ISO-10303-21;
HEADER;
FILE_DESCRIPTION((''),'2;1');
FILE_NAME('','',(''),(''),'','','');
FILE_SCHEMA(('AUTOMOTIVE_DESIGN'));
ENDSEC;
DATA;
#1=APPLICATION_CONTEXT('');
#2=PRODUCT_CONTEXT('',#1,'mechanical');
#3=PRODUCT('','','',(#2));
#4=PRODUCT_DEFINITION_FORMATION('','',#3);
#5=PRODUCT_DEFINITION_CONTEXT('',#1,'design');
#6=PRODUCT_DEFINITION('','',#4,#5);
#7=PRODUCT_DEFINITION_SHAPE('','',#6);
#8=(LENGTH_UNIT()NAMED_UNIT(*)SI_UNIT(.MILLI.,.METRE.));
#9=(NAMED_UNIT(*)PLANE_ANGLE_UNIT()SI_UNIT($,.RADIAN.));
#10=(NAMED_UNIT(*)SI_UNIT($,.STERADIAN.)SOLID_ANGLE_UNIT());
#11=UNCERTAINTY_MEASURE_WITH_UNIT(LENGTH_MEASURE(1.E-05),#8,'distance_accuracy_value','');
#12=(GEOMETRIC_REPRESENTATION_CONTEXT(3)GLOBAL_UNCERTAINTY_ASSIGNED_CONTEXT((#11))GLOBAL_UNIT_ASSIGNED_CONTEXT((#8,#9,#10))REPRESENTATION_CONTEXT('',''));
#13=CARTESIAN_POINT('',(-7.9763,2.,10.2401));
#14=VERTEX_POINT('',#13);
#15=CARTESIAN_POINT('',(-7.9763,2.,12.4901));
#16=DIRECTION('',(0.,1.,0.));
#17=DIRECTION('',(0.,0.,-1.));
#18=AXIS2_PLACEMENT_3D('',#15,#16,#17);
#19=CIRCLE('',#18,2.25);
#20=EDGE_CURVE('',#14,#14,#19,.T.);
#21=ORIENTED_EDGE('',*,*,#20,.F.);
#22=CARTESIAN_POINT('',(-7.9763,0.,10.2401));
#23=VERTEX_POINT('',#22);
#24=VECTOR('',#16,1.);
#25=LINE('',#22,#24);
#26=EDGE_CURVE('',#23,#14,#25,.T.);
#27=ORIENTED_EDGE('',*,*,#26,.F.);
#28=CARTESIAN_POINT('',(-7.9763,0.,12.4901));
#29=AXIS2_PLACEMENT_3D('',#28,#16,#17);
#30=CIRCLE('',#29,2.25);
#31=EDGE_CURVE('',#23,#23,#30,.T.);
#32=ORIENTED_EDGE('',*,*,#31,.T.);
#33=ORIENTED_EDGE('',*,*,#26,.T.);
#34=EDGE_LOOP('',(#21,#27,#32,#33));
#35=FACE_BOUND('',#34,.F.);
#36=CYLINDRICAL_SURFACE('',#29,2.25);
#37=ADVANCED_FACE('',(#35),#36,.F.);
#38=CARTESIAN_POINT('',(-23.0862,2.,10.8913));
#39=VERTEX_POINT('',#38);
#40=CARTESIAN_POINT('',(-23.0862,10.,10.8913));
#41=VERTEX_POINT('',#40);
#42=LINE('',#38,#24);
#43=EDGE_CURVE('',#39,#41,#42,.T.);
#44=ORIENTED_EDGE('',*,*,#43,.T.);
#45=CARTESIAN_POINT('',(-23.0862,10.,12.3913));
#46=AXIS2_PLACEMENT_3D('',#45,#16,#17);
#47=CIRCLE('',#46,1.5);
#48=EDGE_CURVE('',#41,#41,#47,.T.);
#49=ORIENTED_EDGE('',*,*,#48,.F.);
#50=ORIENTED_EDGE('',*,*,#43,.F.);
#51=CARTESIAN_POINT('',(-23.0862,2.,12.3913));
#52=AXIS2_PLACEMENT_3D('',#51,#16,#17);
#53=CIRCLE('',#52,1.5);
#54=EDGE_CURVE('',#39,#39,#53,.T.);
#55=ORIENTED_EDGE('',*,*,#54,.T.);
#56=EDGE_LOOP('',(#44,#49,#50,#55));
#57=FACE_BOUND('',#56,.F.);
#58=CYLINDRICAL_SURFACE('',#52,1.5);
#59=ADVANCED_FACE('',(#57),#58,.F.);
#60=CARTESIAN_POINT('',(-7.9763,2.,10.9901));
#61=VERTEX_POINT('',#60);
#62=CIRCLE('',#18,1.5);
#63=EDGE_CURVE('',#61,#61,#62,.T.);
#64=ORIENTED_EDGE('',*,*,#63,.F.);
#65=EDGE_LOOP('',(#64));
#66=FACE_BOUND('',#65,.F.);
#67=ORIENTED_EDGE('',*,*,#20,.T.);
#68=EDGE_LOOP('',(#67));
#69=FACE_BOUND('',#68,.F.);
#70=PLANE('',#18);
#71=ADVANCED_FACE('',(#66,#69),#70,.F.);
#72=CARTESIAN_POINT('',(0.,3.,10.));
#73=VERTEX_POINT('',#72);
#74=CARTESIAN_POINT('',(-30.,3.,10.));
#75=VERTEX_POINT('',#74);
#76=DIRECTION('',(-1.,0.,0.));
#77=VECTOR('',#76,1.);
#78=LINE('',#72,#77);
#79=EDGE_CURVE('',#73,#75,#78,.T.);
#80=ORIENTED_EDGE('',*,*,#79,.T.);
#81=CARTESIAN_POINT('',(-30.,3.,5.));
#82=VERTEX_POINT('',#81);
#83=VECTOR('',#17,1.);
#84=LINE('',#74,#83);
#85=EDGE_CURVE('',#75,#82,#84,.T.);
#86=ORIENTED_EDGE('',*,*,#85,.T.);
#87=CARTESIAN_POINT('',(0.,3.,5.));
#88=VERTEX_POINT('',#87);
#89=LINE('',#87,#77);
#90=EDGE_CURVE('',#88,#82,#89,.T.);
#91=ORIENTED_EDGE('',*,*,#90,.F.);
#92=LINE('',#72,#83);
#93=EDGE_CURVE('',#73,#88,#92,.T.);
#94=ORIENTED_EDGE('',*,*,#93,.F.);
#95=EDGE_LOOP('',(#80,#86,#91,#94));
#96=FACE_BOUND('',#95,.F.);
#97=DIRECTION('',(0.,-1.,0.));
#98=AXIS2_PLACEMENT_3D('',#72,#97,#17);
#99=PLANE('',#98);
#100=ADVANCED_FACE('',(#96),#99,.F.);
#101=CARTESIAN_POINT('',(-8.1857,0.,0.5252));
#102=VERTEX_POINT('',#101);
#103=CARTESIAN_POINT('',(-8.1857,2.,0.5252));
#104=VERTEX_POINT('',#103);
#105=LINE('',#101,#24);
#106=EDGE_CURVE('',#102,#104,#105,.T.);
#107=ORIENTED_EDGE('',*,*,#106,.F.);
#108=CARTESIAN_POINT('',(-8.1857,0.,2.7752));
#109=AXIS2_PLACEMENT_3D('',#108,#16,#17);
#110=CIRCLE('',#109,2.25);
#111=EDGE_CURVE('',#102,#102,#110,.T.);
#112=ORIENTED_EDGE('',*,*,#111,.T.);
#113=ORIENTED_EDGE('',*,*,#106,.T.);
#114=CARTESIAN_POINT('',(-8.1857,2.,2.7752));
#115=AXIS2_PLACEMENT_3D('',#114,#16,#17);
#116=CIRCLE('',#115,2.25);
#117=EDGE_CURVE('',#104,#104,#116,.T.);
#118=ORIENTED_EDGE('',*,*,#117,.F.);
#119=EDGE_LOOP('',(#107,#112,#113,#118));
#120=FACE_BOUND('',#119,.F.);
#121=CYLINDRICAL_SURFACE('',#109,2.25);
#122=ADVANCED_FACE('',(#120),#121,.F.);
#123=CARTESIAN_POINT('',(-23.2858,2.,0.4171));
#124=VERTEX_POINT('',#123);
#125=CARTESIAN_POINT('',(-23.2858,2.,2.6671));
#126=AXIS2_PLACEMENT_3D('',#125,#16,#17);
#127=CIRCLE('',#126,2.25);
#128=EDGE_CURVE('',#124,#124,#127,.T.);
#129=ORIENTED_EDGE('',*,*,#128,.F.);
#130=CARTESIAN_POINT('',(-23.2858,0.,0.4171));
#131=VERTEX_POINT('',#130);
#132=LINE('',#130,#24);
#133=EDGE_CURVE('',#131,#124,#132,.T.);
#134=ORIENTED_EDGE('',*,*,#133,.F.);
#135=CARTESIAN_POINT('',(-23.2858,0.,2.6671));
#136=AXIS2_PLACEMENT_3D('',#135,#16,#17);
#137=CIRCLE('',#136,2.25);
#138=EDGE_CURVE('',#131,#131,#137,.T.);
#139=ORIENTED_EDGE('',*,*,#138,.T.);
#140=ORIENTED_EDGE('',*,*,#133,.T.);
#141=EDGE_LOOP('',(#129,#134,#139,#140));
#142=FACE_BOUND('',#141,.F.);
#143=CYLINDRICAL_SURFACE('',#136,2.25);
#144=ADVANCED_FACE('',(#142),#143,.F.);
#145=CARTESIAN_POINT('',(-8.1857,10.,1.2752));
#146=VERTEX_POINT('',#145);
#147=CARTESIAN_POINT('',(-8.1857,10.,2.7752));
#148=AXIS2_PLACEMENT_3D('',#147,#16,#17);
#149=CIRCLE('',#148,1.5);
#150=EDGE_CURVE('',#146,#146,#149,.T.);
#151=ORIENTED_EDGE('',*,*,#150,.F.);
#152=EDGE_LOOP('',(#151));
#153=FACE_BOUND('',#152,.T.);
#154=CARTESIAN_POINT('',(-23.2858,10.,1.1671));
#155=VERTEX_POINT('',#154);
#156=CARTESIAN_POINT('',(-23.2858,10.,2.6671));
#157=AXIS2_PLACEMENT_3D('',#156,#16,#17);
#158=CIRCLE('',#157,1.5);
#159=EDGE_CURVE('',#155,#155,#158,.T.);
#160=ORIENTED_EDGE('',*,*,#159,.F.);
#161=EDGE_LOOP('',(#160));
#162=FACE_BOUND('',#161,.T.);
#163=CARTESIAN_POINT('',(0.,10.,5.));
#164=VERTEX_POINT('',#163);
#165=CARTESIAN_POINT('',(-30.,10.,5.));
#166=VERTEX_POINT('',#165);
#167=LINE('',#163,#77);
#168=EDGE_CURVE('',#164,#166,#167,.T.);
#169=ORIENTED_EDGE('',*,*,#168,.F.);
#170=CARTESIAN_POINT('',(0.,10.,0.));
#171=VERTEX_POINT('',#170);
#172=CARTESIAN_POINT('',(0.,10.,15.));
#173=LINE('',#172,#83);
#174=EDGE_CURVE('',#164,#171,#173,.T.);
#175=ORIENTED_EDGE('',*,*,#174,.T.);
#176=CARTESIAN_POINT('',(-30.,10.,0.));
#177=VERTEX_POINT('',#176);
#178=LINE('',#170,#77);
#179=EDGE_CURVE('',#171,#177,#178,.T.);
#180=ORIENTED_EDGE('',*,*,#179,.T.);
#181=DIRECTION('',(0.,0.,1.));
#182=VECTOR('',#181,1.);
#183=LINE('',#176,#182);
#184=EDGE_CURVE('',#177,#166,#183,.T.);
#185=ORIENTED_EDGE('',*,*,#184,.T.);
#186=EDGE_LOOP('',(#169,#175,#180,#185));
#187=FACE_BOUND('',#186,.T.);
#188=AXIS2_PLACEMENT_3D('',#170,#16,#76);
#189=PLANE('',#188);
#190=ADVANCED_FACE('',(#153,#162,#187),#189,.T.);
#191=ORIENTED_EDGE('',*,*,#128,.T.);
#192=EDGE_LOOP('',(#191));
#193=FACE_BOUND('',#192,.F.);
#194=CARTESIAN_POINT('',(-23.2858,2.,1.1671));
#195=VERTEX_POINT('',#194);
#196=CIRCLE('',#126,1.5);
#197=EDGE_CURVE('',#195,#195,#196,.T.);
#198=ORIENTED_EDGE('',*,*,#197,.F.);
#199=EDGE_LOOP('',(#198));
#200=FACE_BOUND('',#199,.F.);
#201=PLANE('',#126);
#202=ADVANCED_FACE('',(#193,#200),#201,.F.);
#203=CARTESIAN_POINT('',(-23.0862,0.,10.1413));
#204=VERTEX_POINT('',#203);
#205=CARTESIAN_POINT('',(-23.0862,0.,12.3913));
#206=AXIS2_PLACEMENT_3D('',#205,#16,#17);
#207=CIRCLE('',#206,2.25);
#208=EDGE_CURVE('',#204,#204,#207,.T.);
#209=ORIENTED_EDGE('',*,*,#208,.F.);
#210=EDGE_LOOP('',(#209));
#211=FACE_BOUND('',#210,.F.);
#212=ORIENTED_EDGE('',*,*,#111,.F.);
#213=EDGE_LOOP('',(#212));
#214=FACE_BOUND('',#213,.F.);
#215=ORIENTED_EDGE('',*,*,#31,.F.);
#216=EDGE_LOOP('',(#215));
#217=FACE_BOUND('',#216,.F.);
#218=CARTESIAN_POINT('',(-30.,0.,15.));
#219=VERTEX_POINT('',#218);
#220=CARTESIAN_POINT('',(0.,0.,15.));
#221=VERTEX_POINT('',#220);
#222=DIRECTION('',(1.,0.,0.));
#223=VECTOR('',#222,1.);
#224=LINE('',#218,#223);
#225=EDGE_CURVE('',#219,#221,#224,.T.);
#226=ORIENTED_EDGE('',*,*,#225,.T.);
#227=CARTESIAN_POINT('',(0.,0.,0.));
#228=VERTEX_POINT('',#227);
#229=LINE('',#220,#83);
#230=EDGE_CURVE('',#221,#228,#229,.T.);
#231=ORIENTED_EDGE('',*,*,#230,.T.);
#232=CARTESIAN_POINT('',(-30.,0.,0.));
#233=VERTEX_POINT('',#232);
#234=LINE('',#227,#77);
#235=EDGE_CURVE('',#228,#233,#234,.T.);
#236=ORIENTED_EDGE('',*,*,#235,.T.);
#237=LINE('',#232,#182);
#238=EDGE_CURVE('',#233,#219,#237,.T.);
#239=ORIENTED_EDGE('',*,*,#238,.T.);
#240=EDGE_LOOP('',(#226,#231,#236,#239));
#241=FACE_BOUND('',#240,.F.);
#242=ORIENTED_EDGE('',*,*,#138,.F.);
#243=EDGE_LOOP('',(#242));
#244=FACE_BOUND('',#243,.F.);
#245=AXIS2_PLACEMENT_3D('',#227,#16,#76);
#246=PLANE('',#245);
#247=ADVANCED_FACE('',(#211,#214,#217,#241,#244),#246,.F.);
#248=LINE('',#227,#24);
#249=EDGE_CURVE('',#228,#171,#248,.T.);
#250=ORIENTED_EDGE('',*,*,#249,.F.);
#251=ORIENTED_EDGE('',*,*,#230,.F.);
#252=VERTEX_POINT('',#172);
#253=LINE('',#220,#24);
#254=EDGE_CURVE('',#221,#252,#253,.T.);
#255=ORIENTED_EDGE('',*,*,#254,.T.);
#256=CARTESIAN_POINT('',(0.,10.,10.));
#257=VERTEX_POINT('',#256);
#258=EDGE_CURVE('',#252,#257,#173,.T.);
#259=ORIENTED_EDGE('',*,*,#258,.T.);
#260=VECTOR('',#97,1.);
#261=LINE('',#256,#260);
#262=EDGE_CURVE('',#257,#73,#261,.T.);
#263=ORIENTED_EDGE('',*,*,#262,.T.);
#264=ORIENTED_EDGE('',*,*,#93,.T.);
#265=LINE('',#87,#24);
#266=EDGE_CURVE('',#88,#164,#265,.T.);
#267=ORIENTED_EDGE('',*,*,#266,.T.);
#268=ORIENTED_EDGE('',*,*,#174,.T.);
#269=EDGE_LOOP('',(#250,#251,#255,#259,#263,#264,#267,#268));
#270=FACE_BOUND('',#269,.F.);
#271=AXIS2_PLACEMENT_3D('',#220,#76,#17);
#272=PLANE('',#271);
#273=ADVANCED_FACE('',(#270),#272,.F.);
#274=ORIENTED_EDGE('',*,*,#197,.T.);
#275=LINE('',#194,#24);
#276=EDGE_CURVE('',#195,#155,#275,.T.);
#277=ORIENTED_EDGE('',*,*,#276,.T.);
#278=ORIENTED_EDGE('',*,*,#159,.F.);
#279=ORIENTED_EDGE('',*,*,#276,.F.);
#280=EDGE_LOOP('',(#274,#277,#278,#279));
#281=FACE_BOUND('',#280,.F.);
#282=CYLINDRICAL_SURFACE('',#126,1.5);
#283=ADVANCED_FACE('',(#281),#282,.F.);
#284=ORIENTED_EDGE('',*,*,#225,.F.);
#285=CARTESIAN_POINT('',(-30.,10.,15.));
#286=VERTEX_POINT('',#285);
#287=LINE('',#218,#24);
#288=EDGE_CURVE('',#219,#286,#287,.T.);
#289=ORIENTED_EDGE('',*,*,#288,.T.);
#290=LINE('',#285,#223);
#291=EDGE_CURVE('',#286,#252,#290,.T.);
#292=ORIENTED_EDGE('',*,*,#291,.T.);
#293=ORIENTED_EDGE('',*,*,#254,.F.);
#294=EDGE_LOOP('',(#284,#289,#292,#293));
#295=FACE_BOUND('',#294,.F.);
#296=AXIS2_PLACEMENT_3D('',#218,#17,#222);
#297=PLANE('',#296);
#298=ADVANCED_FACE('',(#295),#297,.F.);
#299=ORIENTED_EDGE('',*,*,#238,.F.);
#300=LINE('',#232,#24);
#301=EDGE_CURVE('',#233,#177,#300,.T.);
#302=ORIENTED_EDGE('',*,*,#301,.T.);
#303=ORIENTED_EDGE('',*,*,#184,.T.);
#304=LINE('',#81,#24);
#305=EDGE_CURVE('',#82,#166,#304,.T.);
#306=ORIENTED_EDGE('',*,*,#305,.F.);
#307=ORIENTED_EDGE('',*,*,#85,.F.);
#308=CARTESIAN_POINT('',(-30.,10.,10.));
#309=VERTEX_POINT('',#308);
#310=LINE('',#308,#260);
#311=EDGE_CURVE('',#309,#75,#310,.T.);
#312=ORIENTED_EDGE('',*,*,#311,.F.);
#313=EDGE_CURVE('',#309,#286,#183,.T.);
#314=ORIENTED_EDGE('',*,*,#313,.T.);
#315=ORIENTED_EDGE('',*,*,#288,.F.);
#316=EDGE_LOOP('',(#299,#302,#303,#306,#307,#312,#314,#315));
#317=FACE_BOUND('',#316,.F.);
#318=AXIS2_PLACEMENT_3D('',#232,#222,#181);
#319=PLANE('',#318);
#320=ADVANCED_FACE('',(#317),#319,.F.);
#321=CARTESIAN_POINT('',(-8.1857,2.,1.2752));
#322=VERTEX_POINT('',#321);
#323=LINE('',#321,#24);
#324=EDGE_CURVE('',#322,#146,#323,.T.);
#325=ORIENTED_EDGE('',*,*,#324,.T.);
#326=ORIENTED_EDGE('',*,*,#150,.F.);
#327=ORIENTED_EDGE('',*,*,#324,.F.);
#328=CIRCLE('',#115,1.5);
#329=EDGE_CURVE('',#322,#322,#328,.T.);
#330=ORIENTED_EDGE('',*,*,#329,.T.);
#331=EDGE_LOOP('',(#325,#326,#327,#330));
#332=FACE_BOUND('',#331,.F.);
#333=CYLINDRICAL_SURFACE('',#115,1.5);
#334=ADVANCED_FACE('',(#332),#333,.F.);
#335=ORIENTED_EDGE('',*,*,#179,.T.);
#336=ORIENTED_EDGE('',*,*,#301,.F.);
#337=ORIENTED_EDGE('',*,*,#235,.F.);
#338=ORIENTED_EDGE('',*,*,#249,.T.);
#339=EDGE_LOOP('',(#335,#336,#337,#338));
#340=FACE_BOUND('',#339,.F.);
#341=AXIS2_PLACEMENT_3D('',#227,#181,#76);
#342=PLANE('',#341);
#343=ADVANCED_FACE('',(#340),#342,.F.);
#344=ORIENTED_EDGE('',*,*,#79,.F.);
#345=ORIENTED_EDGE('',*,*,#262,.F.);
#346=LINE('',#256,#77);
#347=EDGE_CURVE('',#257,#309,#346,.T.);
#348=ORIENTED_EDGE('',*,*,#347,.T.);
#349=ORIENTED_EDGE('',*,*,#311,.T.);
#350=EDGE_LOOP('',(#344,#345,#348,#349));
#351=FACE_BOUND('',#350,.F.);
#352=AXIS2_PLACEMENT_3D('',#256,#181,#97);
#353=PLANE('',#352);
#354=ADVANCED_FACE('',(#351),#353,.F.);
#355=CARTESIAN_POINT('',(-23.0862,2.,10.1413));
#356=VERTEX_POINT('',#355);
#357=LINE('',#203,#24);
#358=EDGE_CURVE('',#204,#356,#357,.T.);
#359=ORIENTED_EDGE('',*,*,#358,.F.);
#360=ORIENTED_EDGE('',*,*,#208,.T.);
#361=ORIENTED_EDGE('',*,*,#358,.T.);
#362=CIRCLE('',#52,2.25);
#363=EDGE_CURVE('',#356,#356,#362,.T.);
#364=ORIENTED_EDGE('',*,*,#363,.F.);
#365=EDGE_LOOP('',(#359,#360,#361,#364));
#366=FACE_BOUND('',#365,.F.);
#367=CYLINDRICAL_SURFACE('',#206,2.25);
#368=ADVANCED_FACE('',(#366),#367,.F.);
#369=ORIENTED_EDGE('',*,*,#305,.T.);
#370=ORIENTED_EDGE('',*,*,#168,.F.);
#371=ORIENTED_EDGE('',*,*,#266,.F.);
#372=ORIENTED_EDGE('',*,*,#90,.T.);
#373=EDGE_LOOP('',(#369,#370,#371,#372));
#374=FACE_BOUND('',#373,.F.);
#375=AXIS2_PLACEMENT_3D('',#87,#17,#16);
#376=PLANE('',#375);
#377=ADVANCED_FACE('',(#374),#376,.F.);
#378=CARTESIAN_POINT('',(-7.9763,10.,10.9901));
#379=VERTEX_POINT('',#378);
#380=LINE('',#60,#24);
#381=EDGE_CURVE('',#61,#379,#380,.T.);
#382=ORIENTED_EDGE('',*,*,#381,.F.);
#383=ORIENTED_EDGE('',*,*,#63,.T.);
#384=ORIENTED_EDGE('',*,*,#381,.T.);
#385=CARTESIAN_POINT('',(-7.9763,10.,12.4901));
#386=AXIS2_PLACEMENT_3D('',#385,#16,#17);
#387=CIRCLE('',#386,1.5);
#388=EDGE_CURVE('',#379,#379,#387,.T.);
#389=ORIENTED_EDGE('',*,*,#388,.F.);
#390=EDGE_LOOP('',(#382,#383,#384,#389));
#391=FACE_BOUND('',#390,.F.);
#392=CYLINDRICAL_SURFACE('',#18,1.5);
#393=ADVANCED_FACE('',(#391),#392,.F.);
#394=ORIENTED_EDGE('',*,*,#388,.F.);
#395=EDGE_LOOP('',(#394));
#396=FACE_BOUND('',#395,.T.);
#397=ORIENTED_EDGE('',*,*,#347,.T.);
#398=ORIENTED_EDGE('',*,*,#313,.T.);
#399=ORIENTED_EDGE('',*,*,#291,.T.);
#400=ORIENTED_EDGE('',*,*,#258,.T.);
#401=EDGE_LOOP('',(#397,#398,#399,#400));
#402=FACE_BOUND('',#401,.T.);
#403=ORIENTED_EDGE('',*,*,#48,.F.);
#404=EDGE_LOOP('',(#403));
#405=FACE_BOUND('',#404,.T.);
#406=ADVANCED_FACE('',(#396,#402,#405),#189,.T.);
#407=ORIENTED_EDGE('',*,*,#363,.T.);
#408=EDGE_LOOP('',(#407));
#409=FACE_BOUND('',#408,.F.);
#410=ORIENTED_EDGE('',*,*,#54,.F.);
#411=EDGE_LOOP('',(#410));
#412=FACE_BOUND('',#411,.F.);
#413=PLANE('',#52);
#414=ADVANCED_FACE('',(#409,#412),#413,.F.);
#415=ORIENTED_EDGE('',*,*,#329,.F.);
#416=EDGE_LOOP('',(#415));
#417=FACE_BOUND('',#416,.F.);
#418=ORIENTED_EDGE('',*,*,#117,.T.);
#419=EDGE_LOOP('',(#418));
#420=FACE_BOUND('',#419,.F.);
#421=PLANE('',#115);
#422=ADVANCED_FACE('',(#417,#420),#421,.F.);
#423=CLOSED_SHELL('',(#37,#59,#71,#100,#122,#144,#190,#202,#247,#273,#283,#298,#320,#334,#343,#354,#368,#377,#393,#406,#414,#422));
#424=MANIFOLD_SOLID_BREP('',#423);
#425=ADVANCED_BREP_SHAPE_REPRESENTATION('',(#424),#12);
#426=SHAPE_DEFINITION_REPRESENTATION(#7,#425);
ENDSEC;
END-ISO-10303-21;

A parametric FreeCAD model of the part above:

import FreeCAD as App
import Part
import Sketcher
from FreeCAD import Vector

doc = App.newDocument("Part")
body = doc.addObject("PartDesign::Body", "Body")

sketch1 = body.newObject("Sketcher::SketchObject", "Sketch")
sketch1.AttachmentSupport = (doc.getObject("XZ_Plane"), [""])
sketch1.MapMode = "FlatFace"
sketch1.addGeometry(Part.LineSegment(Vector(0, 15, 0), Vector(0, 0, 0)), False)
sketch1.addGeometry(Part.LineSegment(Vector(0, 0, 0), Vector(-30, 0, 0)), False)
sketch1.addGeometry(Part.LineSegment(Vector(-30, 0, 0), Vector(-30, 15, 0)), False)
sketch1.addGeometry(Part.LineSegment(Vector(-30, 15, 0), Vector(0, 15, 0)), False)
sketch1.addConstraint(Sketcher.Constraint("Coincident", 0, 2, 1, 1))
sketch1.addConstraint(Sketcher.Constraint("Coincident", 1, 2, 2, 1))
sketch1.addConstraint(Sketcher.Constraint("Coincident", 2, 2, 3, 1))
sketch1.addConstraint(Sketcher.Constraint("Coincident", 3, 2, 0, 1))
sketch1.addConstraint(Sketcher.Constraint("Vertical", 0))
sketch1.addConstraint(Sketcher.Constraint("Horizontal", 1))
sketch1.addConstraint(Sketcher.Constraint("Vertical", 2))
sketch1.addConstraint(Sketcher.Constraint("Horizontal", 3))
sketch1.addConstraint(Sketcher.Constraint("Coincident", 0, 2, -1, 1))
sketch1.addConstraint(Sketcher.Constraint("DistanceX", 1, 2, 1, 1, 30.0))
sketch1.addConstraint(Sketcher.Constraint("DistanceY", 0, 2, 0, 1, 15.0))
pad1 = body.newObject("PartDesign::Pad", "Pad")
pad1.Profile = sketch1
pad1.Length = 10
pad1.Reversed = True

sketch2 = body.newObject("Sketcher::SketchObject", "Sketch001")
sketch2.AttachmentSupport = (doc.getObject("YZ_Plane"), [""])
sketch2.MapMode = "FlatFace"
sketch2.addGeometry(Part.LineSegment(Vector(3, 10, 0), Vector(3, 5, 0)), False)
sketch2.addGeometry(Part.LineSegment(Vector(3, 5, 0), Vector(10, 5, 0)), False)
sketch2.addGeometry(Part.LineSegment(Vector(10, 5, 0), Vector(10, 10, 0)), False)
sketch2.addGeometry(Part.LineSegment(Vector(10, 10, 0), Vector(3, 10, 0)), False)
sketch2.addConstraint(Sketcher.Constraint("Coincident", 0, 2, 1, 1))
sketch2.addConstraint(Sketcher.Constraint("Coincident", 1, 2, 2, 1))
sketch2.addConstraint(Sketcher.Constraint("Coincident", 2, 2, 3, 1))
sketch2.addConstraint(Sketcher.Constraint("Coincident", 3, 2, 0, 1))
sketch2.addConstraint(Sketcher.Constraint("Vertical", 0))
sketch2.addConstraint(Sketcher.Constraint("Horizontal", 1))
sketch2.addConstraint(Sketcher.Constraint("Vertical", 2))
sketch2.addConstraint(Sketcher.Constraint("Horizontal", 3))
sketch2.addConstraint(Sketcher.Constraint("DistanceX", 1, 1, 1, 2, 7.0))
sketch2.addConstraint(Sketcher.Constraint("DistanceY", 0, 2, 0, 1, 5.0))
sketch2.addConstraint(Sketcher.Constraint("DistanceY", -1, 1, 0, 2, 5.0))
sketch2.addConstraint(Sketcher.Constraint("DistanceX", -1, 1, 1, 2, 10.0))
pocket1 = body.newObject("PartDesign::Pocket", "Pocket")
pocket1.Profile = sketch2
pocket1.Length = 30

sketch3 = body.newObject("Sketcher::SketchObject", "Sketch002")
sketch3.AttachmentSupport = (doc.getObject("XZ_Plane"), [""])
sketch3.MapMode = "FlatFace"
sketch3.addGeometry(Part.Circle(Vector(-23.1, 12.4, 0), Vector(0, 0, 1), 1.5), False)
sketch3.addConstraint(Sketcher.Constraint("Diameter", 0, 3.0))
sketch3.addConstraint(Sketcher.Constraint("DistanceX", 0, 3, -1, 1, 23.0862))
sketch3.addConstraint(Sketcher.Constraint("DistanceY", -1, 1, 0, 3, 12.3913))
doc.recompute()
hole = body.newObject("PartDesign::Hole", "Hole")
hole.Profile = sketch3
hole.ThreadType = "None"
hole.Diameter = 3
hole.DepthType = "Dimension"
hole.Depth = 10
hole.DrillPoint = "Angled"
hole.DrillPointAngle = 118
hole.HoleCutType = "Counterbore"
hole.HoleCutDiameter = 4.5
hole.HoleCutDepth = 2

sketch4 = body.newObject("Sketcher::SketchObject", "Sketch003")
sketch4.AttachmentSupport = (doc.getObject("XZ_Plane"), [""])
sketch4.MapMode = "FlatFace"
sketch4.addGeometry(Part.Circle(Vector(-8, 12.5, 0), Vector(0, 0, 1), 1.5), False)
sketch4.addConstraint(Sketcher.Constraint("Diameter", 0, 3.0))
sketch4.addConstraint(Sketcher.Constraint("DistanceY", -1, 1, 0, 3, 12.49))
sketch4.addConstraint(Sketcher.Constraint("DistanceX", 0, 3, -1, 1, 7.9763))
doc.recompute()
hole2 = body.newObject("PartDesign::Hole", "Hole001")
hole2.Profile = sketch4
hole2.ThreadType = "None"
hole2.Diameter = 3
hole2.DepthType = "Dimension"
hole2.Depth = 10
hole2.DrillPoint = "Angled"
hole2.DrillPointAngle = 118
hole2.HoleCutType = "Counterbore"
hole2.HoleCutDiameter = 4.5
hole2.HoleCutDepth = 2

sketch5 = body.newObject("Sketcher::SketchObject", "Sketch004")
sketch5.AttachmentSupport = (doc.getObject("XZ_Plane"), [""])
sketch5.MapMode = "FlatFace"
sketch5.addGeometry(Part.Circle(Vector(-23.3, 2.7, 0), Vector(0, 0, 1), 1.5), False)
sketch5.addConstraint(Sketcher.Constraint("Diameter", 0, 3.0))
sketch5.addConstraint(Sketcher.Constraint("DistanceY", -1, 1, 0, 3, 2.667))
sketch5.addConstraint(Sketcher.Constraint("DistanceX", 0, 3, -1, 1, 23.2858))
doc.recompute()
hole3 = body.newObject("PartDesign::Hole", "Hole002")
hole3.Profile = sketch5
hole3.ThreadType = "None"
hole3.Diameter = 3
hole3.DepthType = "Dimension"
hole3.Depth = 10
hole3.DrillPoint = "Angled"
hole3.DrillPointAngle = 118
hole3.HoleCutType = "Counterbore"
hole3.HoleCutDiameter = 4.5
hole3.HoleCutDepth = 2

sketch6 = body.newObject("Sketcher::SketchObject", "Sketch005")
sketch6.AttachmentSupport = (doc.getObject("XZ_Plane"), [""])
sketch6.MapMode = "FlatFace"
sketch6.addGeometry(Part.Circle(Vector(-8.2, 2.8, 0), Vector(0, 0, 1), 1.5), False)
sketch6.addConstraint(Sketcher.Constraint("Diameter", 0, 3.0))
sketch6.addConstraint(Sketcher.Constraint("DistanceX", 0, 3, -1, 1, 8.1857))
sketch6.addConstraint(Sketcher.Constraint("DistanceY", -1, 1, 0, 3, 2.7752))
doc.recompute()
hole4 = body.newObject("PartDesign::Hole", "Hole003")
hole4.Profile = sketch6
hole4.ThreadType = "None"
hole4.Diameter = 3
hole4.DepthType = "Dimension"
hole4.Depth = 10
hole4.DrillPoint = "Angled"
hole4.DrillPointAngle = 118
hole4.HoleCutType = "Counterbore"
hole4.HoleCutDiameter = 4.5
hole4.HoleCutDepth = 2

doc.recompute()
